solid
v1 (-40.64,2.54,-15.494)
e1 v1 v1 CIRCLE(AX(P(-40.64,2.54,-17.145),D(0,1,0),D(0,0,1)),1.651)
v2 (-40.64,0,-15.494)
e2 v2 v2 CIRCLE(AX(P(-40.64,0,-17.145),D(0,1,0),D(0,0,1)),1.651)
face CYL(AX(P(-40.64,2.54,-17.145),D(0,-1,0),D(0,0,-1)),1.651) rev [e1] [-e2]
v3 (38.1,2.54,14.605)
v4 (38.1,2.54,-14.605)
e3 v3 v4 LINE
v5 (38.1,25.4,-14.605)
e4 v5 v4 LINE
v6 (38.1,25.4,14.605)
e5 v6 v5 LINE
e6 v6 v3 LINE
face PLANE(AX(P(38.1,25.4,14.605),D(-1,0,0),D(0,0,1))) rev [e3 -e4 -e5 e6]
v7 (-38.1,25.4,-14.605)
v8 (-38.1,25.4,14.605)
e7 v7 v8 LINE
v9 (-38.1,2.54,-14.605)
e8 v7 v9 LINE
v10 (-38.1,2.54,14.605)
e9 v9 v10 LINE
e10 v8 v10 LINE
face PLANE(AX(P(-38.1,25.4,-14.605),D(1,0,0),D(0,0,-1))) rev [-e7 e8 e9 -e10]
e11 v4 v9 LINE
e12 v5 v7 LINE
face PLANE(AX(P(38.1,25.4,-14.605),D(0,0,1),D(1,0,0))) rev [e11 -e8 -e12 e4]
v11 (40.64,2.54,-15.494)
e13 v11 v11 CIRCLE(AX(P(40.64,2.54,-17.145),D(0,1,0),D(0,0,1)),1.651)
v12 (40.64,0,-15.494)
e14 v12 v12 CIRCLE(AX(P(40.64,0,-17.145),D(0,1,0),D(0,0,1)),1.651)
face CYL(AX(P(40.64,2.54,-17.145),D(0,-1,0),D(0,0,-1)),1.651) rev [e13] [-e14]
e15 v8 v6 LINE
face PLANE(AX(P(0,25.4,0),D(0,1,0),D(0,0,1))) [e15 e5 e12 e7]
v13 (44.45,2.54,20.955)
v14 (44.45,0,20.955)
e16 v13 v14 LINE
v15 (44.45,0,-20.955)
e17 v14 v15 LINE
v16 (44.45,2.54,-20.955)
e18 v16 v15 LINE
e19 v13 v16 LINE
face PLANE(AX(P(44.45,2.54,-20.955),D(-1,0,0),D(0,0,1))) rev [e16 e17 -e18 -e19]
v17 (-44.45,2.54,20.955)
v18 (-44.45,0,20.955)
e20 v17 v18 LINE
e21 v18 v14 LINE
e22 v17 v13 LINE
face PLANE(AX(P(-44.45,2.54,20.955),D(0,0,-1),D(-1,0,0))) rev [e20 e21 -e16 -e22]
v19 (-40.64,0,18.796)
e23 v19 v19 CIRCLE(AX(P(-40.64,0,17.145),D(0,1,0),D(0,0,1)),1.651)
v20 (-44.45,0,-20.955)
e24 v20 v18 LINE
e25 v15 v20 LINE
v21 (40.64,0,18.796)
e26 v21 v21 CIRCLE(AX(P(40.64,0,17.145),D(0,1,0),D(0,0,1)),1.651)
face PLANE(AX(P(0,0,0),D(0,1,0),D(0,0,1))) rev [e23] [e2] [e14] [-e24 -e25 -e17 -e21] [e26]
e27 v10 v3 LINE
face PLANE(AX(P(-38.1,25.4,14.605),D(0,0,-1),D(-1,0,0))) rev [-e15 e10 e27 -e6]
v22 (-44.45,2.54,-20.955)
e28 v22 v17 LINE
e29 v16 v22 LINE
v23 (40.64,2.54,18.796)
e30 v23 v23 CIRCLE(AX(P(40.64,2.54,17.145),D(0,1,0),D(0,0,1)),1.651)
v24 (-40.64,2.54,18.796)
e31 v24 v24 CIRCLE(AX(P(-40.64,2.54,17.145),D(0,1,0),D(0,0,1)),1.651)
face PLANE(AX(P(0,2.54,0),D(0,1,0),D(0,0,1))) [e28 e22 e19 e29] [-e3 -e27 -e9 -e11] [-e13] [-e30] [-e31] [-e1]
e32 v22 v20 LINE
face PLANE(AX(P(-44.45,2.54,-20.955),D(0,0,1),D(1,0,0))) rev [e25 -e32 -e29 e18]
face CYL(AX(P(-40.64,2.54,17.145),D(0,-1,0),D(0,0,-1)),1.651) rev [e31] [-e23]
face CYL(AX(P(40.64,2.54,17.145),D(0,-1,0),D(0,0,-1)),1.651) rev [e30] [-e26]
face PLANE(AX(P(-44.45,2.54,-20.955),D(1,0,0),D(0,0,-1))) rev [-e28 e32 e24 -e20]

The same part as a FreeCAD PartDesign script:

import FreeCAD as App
import Part
import Sketcher
Q = App.Units.Quantity

doc = App.newDocument("Part")
body = doc.addObject("PartDesign::Body", "Body")

# Sketch on XZ plane
sketch1 = body.newObject("Sketcher::SketchObject", "Sketch")
sketch1.AttachmentSupport = (doc.getObject("XZ_Plane"), [""])
sketch1.MapMode = "FlatFace"
sketch1.addGeometry([
    Part.LineSegment(App.Vector(-44.45, -20.955, 0), App.Vector(-44.45, 20.955, 0)),
    Part.LineSegment(App.Vector(-44.45, 20.955, 0), App.Vector(44.45, 20.955, 0)),
    Part.LineSegment(App.Vector(44.45, 20.955, 0), App.Vector(44.45, -20.955, 0)),
    Part.LineSegment(App.Vector(44.45, -20.955, 0), App.Vector(-44.45, -20.955, 0)),
], False)
sketch1.addConstraint([
    Sketcher.Constraint("Coincident", 0, 2, 1, 1),
    Sketcher.Constraint("Coincident", 1, 2, 2, 1),
    Sketcher.Constraint("Coincident", 2, 2, 3, 1),
    Sketcher.Constraint("Coincident", 3, 2, 0, 1),
    Sketcher.Constraint("Vertical", 0),
    Sketcher.Constraint("Horizontal", 1),
    Sketcher.Constraint("Vertical", 2),
    Sketcher.Constraint("Horizontal", 3),
    Sketcher.Constraint("Symmetric", 0, 2, 2, 2, -1, 1),
    Sketcher.Constraint("DistanceX", 1, 1, 1, 2, Q("3.5 in")),
    Sketcher.Constraint("DistanceY", 0, 1, 0, 2, Q("1.65 in")),
])
pad1 = body.newObject("PartDesign::Pad", "Pad")
pad1.Profile = sketch1
pad1.Length = Q("0.1 in")
pad1.Reversed = True

# Sketch on XZ plane
sketch2 = body.newObject("Sketcher::SketchObject", "Sketch001")
sketch2.AttachmentSupport = (doc.getObject("XZ_Plane"), [""])
sketch2.MapMode = "FlatFace"
sketch2.addGeometry([
    Part.Circle(App.Vector(-40.64, -17.145, 0), App.Vector(0, 0, 1), 1.651),
    Part.Circle(App.Vector(40.64, -17.145, 0), App.Vector(0, 0, 1), 1.651),
    Part.Circle(App.Vector(40.64, 17.145, 0), App.Vector(0, 0, 1), 1.651),
    Part.Circle(App.Vector(-40.64, 17.145, 0), App.Vector(0, 0, 1), 1.651),
], False)
sketch2.addConstraint([
    Sketcher.Constraint("Equal", 0, 1),
    Sketcher.Constraint("Equal", 1, 2),
    Sketcher.Constraint("Equal", 2, 3),
    Sketcher.Constraint("Symmetric", 0, 3, 2, 3, -1, 1),
    Sketcher.Constraint("Symmetric", 1, 3, 3, 3, -1, 1),
    Sketcher.Constraint("Symmetric", 0, 3, 1, 3, -2),
    Sketcher.Constraint("Diameter", 0, Q("0.13 in")),
    Sketcher.Constraint("DistanceX", 0, 3, -1, 1, Q("1.6 in")),
    Sketcher.Constraint("DistanceY", 1, 3, 2, 3, Q("1.35 in")),
])
pocket1 = body.newObject("PartDesign::Pocket", "Pocket")
pocket1.Profile = sketch2
pocket1.Type = "ThroughAll"

# Sketch on XZ plane
sketch3 = body.newObject("Sketcher::SketchObject", "Sketch002")
sketch3.AttachmentSupport = (doc.getObject("XZ_Plane"), [""])
sketch3.MapMode = "FlatFace"
sketch3.AttachmentOffset = App.Placement(App.Vector(0, 0, -0.1 * 25.4), App.Rotation())
sketch3.addGeometry([
    Part.LineSegment(App.Vector(-38.1, -14.605, 0), App.Vector(-38.1, 14.605, 0)),
    Part.LineSegment(App.Vector(-38.1, 14.605, 0), App.Vector(38.1, 14.605, 0)),
    Part.LineSegment(App.Vector(38.1, 14.605, 0), App.Vector(38.1, -14.605, 0)),
    Part.LineSegment(App.Vector(38.1, -14.605, 0), App.Vector(-38.1, -14.605, 0)),
], False)
sketch3.addConstraint([
    Sketcher.Constraint("Coincident", 0, 2, 1, 1),
    Sketcher.Constraint("Coincident", 1, 2, 2, 1),
    Sketcher.Constraint("Coincident", 2, 2, 3, 1),
    Sketcher.Constraint("Coincident", 3, 2, 0, 1),
    Sketcher.Constraint("Vertical", 0),
    Sketcher.Constraint("Horizontal", 1),
    Sketcher.Constraint("Vertical", 2),
    Sketcher.Constraint("Horizontal", 3),
    Sketcher.Constraint("Symmetric", 0, 2, 2, 2, -1, 1),
    Sketcher.Constraint("DistanceX", 1, 1, 1, 2, Q("3 in")),
    Sketcher.Constraint("DistanceY", 0, 1, 0, 2, Q("1.15 in")),
])
pad2 = body.newObject("PartDesign::Pad", "Pad001")
pad2.Profile = sketch3
pad2.Length = Q("0.9 in")
pad2.Reversed = True

doc.recompute()
